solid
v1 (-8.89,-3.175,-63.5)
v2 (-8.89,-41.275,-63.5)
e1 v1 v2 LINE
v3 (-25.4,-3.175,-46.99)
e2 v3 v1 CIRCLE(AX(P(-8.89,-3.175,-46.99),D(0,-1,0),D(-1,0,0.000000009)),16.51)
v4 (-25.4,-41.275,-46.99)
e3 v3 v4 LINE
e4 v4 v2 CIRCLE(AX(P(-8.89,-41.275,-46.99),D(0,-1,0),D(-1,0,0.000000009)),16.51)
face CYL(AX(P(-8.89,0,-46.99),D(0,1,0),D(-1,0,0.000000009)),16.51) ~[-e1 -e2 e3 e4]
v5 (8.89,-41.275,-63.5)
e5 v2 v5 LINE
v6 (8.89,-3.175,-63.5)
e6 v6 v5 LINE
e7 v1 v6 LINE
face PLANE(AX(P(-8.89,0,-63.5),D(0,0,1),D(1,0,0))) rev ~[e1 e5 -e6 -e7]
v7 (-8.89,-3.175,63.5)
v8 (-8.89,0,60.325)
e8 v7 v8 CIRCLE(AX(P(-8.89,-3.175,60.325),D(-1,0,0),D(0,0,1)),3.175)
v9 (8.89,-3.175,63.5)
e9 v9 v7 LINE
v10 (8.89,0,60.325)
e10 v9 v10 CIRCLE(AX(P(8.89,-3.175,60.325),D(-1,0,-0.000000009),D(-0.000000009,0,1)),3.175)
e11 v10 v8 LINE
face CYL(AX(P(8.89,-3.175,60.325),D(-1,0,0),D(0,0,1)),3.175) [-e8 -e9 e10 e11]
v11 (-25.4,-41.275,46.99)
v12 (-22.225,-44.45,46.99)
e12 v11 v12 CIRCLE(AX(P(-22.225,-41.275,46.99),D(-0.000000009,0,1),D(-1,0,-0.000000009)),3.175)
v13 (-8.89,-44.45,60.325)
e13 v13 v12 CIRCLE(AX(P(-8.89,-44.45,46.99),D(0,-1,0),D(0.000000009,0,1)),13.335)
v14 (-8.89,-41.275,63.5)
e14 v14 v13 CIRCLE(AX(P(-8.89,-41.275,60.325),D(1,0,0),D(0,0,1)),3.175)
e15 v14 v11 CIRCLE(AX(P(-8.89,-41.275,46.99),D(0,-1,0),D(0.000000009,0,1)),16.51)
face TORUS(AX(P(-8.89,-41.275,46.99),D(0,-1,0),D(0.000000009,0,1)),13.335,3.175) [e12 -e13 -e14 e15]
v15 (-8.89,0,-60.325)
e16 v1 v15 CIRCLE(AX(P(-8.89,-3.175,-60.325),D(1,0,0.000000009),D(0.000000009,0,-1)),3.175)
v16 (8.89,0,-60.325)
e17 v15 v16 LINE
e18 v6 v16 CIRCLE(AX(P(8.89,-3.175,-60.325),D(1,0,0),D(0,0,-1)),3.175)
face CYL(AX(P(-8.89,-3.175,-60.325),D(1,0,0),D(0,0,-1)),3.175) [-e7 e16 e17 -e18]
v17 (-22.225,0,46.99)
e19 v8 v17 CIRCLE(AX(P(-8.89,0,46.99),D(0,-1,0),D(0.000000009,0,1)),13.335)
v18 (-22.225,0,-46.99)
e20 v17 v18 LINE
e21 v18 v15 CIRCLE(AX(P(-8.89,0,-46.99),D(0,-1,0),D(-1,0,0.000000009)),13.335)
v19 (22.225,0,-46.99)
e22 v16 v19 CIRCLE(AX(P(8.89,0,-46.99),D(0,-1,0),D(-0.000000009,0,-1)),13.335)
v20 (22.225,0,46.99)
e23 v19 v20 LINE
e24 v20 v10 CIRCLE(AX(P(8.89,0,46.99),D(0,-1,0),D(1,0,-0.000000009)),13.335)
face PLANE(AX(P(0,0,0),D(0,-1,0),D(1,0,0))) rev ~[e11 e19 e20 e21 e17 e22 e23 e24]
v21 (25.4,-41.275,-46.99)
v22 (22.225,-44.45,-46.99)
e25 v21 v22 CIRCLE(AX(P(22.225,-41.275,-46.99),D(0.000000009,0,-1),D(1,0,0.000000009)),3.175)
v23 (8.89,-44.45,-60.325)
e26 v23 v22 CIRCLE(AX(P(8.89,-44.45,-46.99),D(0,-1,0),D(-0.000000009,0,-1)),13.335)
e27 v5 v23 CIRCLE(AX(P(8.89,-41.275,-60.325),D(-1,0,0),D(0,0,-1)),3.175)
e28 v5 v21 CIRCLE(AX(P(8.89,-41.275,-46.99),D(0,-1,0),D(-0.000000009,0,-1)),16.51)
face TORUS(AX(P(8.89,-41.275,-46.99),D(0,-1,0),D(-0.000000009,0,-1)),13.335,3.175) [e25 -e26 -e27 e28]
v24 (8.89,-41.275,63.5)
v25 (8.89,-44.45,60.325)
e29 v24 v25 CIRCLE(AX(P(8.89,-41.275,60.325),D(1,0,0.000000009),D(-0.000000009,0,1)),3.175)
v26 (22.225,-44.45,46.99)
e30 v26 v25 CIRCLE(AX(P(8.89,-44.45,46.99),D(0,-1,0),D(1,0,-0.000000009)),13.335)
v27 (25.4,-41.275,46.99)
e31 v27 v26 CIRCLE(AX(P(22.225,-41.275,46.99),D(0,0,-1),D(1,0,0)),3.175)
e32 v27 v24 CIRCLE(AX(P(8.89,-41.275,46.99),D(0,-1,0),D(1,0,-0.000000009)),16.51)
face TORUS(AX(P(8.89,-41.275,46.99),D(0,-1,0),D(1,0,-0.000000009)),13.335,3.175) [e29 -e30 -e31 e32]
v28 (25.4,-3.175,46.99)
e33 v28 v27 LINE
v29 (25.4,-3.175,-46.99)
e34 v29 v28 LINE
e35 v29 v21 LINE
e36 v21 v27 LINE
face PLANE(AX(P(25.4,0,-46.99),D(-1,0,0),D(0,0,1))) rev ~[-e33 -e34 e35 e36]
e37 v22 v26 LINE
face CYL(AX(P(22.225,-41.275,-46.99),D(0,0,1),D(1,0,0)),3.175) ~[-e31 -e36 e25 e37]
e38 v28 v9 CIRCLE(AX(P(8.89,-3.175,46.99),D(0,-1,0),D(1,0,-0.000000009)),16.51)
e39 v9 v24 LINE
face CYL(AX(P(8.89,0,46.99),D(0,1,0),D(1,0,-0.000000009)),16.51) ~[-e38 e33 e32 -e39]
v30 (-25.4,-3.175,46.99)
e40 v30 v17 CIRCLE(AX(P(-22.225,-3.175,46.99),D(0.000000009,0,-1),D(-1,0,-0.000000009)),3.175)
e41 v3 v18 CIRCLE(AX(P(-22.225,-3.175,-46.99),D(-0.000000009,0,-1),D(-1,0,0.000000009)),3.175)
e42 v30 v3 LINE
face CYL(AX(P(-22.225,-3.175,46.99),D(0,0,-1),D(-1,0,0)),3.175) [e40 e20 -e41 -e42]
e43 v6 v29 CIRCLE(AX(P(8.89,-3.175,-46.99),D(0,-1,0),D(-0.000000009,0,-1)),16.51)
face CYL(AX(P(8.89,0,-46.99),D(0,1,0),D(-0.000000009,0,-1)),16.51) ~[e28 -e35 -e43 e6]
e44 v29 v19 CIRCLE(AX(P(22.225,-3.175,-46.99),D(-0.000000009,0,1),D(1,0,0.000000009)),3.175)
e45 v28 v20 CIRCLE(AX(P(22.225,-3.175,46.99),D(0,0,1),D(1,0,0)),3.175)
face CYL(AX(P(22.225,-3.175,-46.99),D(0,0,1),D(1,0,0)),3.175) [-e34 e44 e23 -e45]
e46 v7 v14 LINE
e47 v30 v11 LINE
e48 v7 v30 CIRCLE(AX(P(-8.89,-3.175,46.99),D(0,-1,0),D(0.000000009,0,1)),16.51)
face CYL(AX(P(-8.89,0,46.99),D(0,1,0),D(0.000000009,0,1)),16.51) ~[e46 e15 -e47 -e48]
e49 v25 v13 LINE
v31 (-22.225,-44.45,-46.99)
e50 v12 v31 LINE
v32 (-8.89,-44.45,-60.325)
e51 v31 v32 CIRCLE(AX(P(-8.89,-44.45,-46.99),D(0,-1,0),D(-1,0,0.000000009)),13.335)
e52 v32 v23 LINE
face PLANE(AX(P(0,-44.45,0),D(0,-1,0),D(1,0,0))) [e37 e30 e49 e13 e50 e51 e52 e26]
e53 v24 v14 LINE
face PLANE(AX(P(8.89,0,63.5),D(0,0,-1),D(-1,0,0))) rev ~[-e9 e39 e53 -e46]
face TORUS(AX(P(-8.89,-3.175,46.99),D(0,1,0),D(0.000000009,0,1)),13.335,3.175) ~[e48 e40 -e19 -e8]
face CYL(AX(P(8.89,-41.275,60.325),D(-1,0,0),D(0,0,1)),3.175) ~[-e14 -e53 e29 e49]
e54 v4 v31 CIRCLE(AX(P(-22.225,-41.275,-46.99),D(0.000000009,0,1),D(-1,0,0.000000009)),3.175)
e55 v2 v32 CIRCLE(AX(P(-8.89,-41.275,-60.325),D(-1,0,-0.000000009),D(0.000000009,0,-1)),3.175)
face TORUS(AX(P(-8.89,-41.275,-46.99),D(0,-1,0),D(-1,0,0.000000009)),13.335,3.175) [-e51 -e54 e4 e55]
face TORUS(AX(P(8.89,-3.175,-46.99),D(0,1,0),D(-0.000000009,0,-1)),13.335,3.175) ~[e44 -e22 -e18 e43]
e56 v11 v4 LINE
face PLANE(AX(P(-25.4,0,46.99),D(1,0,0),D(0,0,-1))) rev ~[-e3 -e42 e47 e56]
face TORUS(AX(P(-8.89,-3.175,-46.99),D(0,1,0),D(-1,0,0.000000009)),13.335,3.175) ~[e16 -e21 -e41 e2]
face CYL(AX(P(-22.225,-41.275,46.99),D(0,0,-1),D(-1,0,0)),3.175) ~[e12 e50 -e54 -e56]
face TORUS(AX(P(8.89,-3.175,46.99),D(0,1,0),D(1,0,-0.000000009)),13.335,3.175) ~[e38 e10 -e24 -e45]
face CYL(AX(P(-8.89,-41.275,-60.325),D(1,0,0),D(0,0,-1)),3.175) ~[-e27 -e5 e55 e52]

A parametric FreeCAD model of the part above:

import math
import FreeCAD as App
import Part
import Sketcher

V = App.Vector
Q = App.Units.Quantity


def edges_at(feature, points):
    """Names of the edges that pass closest to the given points."""
    edges = feature.Shape.Edges
    near = lambda p: min(range(len(edges)), key=lambda i: edges[i].distToShape(Part.Vertex(*p))[0])
    return sorted({f"Edge{near(p) + 1}" for p in points})

doc = App.newDocument("Part")
params = doc.addObject("Spreadsheet::Sheet", "Params")
for row, (alias, value) in enumerate([
    ("sketch1_radius", "0.65 in"),
    ("sketch1_width", "0.7 in"),
    ("sketch1_height", "3.7 in"),
    ("pad1_length", "1.75 in"),
    ("fillet_radius", "0.125 in"),
], start=1):
    params.set(f"A{row}", alias)
    params.set(f"B{row}", "=" + value)
    params.setAlias(f"B{row}", alias)

body = doc.addObject("PartDesign::Body", "Body")

sketch1 = doc.addObject("Sketcher::SketchObject", "Sketch")
body.addObject(sketch1)
sketch1.AttachmentSupport = (doc.XZ_Plane, [""])
sketch1.MapMode = "FlatFace"
sketch1.addGeometry([
    Part.LineSegment(V(8.89, 63.5, 0), V(-8.89, 63.5, 0)),
    Part.ArcOfCircle(Part.Circle(V(-8.89, 46.99, 0), V(0, 0, 1), 16.51), math.radians(89.999999), math.radians(180.000001)),
    Part.LineSegment(V(-25.4, 46.99, 0), V(-25.4, -46.99, 0)),
    Part.ArcOfCircle(Part.Circle(V(-8.89, -46.99, 0), V(0, 0, 1), 16.51), math.radians(179.999999), math.radians(270.000001)),
    Part.LineSegment(V(-8.89, -63.5, 0), V(8.89, -63.5, 0)),
    Part.ArcOfCircle(Part.Circle(V(8.89, -46.99, 0), V(0, 0, 1), 16.51), math.radians(-90.000001), math.radians(0.000001)),
    Part.LineSegment(V(25.4, -46.99, 0), V(25.4, 46.99, 0)),
    Part.ArcOfCircle(Part.Circle(V(8.89, 46.99, 0), V(0, 0, 1), 16.51), math.radians(-0.000001), math.radians(90.000001)),
], False)
sketch1.addConstraint([
    Sketcher.Constraint("Tangent", 0, 2, 1, 1),
    Sketcher.Constraint("Tangent", 1, 2, 2, 1),
    Sketcher.Constraint("Tangent", 2, 2, 3, 1),
    Sketcher.Constraint("Tangent", 3, 2, 4, 1),
    Sketcher.Constraint("Tangent", 4, 2, 5, 1),
    Sketcher.Constraint("Tangent", 5, 2, 6, 1),
    Sketcher.Constraint("Tangent", 6, 2, 7, 1),
    Sketcher.Constraint("Tangent", 7, 2, 0, 1),
    Sketcher.Constraint("Horizontal", 0),
    Sketcher.Constraint("Vertical", 2),
    Sketcher.Constraint("Horizontal", 4),
    Sketcher.Constraint("Vertical", 6),
    Sketcher.Constraint("Equal", 1, 3),
    Sketcher.Constraint("Equal", 3, 5),
    Sketcher.Constraint("Equal", 5, 7),
    Sketcher.Constraint("Symmetric", 1, 3, 5, 3, -1, 1),
    Sketcher.Constraint("Radius", 1, Q("0.65 in")),
    Sketcher.Constraint("DistanceX", 0, 2, 0, 1, Q("0.7 in")),
    Sketcher.Constraint("DistanceY", 2, 2, 2, 1, Q("3.7 in")),
])
sketch1.setExpression("Constraints[16]", "Params.sketch1_radius")
sketch1.setExpression("Constraints[17]", "Params.sketch1_width")
sketch1.setExpression("Constraints[18]", "Params.sketch1_height")
pad1 = doc.addObject("PartDesign::Pad", "Pad")
body.addObject(pad1)
pad1.Profile = sketch1
pad1.setExpression("Length", "Params.pad1_length")
doc.recompute()

fillet = doc.addObject("PartDesign::Fillet", "Fillet")
body.addObject(fillet)
fillet.Base = (pad1, edges_at(pad1, [
    (-25.4, -22.225, -46.99),
    (-8.89, -22.225, -63.5),
    (-20.564, 0, -58.664),
    (-20.564, -44.45, -58.664),
    (8.89, -22.225, -63.5),
    (25.4, -22.225, -46.99),
    (20.564, 0, -58.664),
    (20.564, -44.45, -58.664),
]))
fillet.setExpression("Radius", "Params.fillet_radius")

doc.recompute()
